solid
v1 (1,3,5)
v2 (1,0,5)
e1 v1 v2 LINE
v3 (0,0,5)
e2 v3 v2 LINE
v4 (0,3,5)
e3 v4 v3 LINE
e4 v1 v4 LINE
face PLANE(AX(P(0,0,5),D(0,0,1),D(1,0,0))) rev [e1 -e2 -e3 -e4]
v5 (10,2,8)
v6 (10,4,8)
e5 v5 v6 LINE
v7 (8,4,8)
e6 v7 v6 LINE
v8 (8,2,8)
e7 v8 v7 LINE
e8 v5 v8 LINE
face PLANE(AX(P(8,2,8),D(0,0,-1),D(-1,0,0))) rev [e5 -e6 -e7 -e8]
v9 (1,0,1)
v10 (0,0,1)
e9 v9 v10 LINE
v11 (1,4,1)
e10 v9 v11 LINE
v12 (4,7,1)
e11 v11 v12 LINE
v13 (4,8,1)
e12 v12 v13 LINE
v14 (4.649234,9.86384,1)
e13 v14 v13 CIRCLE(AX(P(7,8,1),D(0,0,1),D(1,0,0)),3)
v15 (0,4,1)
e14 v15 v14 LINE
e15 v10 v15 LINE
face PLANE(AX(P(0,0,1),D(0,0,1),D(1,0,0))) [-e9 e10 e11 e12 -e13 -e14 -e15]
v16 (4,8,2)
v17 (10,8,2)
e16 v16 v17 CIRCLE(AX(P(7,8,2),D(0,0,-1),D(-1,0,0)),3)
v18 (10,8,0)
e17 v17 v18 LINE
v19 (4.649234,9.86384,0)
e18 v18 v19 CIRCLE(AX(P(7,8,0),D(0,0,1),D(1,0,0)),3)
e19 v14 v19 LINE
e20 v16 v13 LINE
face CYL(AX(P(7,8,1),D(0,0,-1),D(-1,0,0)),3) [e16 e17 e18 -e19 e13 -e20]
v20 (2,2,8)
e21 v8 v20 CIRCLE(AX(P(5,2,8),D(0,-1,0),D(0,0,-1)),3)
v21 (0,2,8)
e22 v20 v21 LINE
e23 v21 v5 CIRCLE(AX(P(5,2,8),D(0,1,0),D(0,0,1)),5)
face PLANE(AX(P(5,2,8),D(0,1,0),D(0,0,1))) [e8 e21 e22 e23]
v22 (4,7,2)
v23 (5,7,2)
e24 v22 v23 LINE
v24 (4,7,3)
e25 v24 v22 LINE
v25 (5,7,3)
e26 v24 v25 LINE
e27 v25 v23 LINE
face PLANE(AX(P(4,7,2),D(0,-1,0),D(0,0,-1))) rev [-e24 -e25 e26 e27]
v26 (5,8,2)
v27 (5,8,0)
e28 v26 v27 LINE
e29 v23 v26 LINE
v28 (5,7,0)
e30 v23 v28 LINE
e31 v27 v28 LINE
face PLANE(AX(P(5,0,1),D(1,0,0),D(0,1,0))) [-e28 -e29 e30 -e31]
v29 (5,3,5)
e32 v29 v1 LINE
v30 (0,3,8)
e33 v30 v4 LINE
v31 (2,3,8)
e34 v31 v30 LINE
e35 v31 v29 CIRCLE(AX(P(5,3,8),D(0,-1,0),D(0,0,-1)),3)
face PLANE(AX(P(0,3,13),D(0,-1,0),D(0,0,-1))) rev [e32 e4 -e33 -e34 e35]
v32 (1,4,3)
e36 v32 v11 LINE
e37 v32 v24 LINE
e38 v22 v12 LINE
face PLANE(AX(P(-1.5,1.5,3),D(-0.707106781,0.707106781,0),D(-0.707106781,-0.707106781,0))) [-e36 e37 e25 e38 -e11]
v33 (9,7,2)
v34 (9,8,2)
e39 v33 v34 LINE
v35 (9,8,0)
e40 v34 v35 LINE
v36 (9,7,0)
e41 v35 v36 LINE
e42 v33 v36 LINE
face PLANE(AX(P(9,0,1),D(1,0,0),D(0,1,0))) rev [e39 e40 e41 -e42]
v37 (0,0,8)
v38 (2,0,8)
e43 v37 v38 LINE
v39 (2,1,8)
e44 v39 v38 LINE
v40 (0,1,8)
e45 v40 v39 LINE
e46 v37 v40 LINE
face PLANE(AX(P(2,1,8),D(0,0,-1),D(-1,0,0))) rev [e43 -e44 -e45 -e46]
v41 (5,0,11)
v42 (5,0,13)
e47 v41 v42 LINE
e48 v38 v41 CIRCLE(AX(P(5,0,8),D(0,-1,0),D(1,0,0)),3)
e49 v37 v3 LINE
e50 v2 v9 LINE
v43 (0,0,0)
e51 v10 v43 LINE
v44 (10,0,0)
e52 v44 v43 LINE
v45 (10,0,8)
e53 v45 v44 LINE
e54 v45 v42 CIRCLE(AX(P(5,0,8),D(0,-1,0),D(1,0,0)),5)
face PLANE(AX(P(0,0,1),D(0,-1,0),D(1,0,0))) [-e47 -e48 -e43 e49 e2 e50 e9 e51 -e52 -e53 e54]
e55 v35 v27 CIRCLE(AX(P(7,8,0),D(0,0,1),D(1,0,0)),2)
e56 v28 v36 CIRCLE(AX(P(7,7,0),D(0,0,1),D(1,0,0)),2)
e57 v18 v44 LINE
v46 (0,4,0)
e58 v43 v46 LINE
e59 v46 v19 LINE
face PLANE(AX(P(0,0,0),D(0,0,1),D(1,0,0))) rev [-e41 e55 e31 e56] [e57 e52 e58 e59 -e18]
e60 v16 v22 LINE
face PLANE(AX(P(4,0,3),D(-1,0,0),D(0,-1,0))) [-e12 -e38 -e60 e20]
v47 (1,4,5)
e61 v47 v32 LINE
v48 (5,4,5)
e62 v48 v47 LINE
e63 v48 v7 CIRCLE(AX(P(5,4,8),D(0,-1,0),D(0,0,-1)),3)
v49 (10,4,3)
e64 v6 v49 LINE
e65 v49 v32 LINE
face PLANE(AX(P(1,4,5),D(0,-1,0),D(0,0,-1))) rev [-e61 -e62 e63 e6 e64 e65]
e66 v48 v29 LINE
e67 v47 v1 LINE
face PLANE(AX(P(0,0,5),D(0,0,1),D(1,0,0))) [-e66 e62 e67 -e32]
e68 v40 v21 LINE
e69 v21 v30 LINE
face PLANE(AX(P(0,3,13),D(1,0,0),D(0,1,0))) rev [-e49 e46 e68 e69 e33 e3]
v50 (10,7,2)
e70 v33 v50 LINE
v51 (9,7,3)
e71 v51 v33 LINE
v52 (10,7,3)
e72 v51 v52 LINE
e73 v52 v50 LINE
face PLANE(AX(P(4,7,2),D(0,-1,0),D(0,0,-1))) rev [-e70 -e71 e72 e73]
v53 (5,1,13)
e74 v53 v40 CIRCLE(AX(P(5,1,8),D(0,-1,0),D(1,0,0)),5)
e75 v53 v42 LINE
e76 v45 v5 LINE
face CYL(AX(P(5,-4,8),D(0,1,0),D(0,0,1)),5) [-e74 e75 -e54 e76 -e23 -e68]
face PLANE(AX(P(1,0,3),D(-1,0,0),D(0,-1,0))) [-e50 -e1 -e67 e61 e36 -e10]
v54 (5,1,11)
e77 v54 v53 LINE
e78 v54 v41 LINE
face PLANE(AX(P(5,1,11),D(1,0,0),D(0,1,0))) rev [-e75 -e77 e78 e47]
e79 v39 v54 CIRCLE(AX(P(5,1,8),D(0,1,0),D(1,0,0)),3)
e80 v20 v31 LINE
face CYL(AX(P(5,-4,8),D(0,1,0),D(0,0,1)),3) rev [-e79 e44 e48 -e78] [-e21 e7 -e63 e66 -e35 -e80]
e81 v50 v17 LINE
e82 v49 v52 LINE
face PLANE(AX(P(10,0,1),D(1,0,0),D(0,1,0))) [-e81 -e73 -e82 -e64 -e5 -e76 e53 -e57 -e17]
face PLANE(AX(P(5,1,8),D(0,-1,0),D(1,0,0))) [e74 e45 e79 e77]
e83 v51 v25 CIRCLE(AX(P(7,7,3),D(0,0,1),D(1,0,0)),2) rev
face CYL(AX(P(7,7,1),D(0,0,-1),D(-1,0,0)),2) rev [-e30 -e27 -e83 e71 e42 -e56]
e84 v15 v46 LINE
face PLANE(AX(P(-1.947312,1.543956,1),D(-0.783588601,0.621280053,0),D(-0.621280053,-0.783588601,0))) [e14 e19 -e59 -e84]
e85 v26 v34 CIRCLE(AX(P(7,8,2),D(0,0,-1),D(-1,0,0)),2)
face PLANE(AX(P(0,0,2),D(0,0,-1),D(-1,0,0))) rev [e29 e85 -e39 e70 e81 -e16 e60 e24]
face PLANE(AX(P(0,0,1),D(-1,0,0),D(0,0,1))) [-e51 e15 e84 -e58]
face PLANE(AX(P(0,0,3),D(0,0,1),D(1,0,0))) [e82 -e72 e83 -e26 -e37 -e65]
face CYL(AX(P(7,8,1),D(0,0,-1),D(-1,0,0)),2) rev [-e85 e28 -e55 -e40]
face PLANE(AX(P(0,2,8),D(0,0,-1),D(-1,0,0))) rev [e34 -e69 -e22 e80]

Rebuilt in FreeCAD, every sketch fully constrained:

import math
import FreeCAD as App
import Part
import Sketcher
Q = App.Units.Quantity


def add_polygon(sketch, points):
    """Adds a closed chain of lines whose ends are joined by coincident constraints."""
    first, n = sketch.GeometryCount, len(points)
    for a, b in zip(points, points[1:] + points[:1]):
        sketch.addGeometry(Part.LineSegment(App.Vector(*a, 0), App.Vector(*b, 0)), False)
    for i in range(n):
        sketch.addConstraint(Sketcher.Constraint("Coincident", first + i, 2, first + (i + 1) % n, 1))

doc = App.newDocument("Part")
body = doc.addObject("PartDesign::Body", "Body")

sketch1 = doc.addObject("Sketcher::SketchObject", "Sketch")
body.addObject(sketch1)
sketch1.AttachmentSupport = (doc.XY_Plane, [""])
sketch1.MapMode = "FlatFace"
sketch1.addGeometry([
    Part.LineSegment(App.Vector(0, 4, 0), App.Vector(0, 0, 0)),
    Part.LineSegment(App.Vector(0, 0, 0), App.Vector(10, 0, 0)),
    Part.LineSegment(App.Vector(10, 0, 0), App.Vector(10, 8, 0)),
    Part.ArcOfCircle(Part.Circle(App.Vector(7, 8, 0), App.Vector(0, 0, 1), 3), math.radians(0), math.radians(141.590329)),
    Part.LineSegment(App.Vector(4.649234, 9.86384, 0), App.Vector(0, 4, 0)),
    Part.LineSegment(App.Vector(9, 8, 0), App.Vector(9, 7, 0)),
    Part.ArcOfCircle(Part.Circle(App.Vector(7, 7, 0), App.Vector(0, 0, 1), 2), math.radians(180), math.radians(360)),
    Part.LineSegment(App.Vector(5, 7, 0), App.Vector(5, 8, 0)),
    Part.ArcOfCircle(Part.Circle(App.Vector(7, 8, 0), App.Vector(0, 0, 1), 2), math.radians(0), math.radians(180)),
], False)
sketch1.addConstraint([
    Sketcher.Constraint("Coincident", 0, 2, 1, 1),
    Sketcher.Constraint("Coincident", 1, 2, 2, 1),
    Sketcher.Constraint("Tangent", 2, 2, 3, 1),
    Sketcher.Constraint("Tangent", 3, 2, 4, 1),
    Sketcher.Constraint("Coincident", 4, 2, 0, 1),
    Sketcher.Constraint("Tangent", 5, 2, 6, 2),
    Sketcher.Constraint("Tangent", 6, 1, 7, 1),
    Sketcher.Constraint("Tangent", 7, 2, 8, 2),
    Sketcher.Constraint("Tangent", 8, 1, 5, 1),
    Sketcher.Constraint("Vertical", 0),
    Sketcher.Constraint("Horizontal", 1),
    Sketcher.Constraint("Vertical", 2),
    Sketcher.Constraint("Vertical", 5),
    Sketcher.Constraint("Vertical", 7),
    Sketcher.Constraint("Coincident", 0, 2, -1, 1),
    Sketcher.Constraint("Coincident", 8, 3, 3, 3),
    Sketcher.Constraint("Radius", 3, Q("3 mm")),
    Sketcher.Constraint("Radius", 6, Q("2 mm")),
    Sketcher.Constraint("DistanceX", 1, 1, 1, 2, Q("10 mm")),
    Sketcher.Constraint("DistanceY", 0, 2, 0, 1, Q("4 mm")),
    Sketcher.Constraint("DistanceY", 2, 1, 2, 2, Q("8 mm")),
    Sketcher.Constraint("DistanceY", 5, 2, 5, 1, Q("1 mm")),
])
pad1 = doc.addObject("PartDesign::Pad", "Pad")
body.addObject(pad1)
pad1.Profile = sketch1
pad1.Length = 1

sketch2 = doc.addObject("Sketcher::SketchObject", "Sketch001")
body.addObject(sketch2)
sketch2.AttachmentSupport = (doc.XY_Plane, [""])
sketch2.MapMode = "FlatFace"
sketch2.AttachmentOffset = App.Placement(App.Vector(0, 0, 1), App.Rotation())
sketch2.addGeometry([
    Part.LineSegment(App.Vector(1, 4, 0), App.Vector(1, 0, 0)),
    Part.LineSegment(App.Vector(1, 0, 0), App.Vector(10, 0, 0)),
    Part.LineSegment(App.Vector(10, 0, 0), App.Vector(10, 8, 0)),
    Part.ArcOfCircle(Part.Circle(App.Vector(7, 8, 0), App.Vector(0, 0, 1), 3), math.radians(0), math.radians(180)),
    Part.LineSegment(App.Vector(4, 8, 0), App.Vector(4, 7, 0)),
    Part.LineSegment(App.Vector(4, 7, 0), App.Vector(1, 4, 0)),
    Part.ArcOfCircle(Part.Circle(App.Vector(7, 7, 0), App.Vector(0, 0, 1), 2), math.radians(180), math.radians(360)),
    Part.LineSegment(App.Vector(5, 7, 0), App.Vector(5, 8, 0)),
    Part.ArcOfCircle(Part.Circle(App.Vector(7, 8, 0), App.Vector(0, 0, 1), 2), math.radians(0), math.radians(180)),
    Part.LineSegment(App.Vector(9, 8, 0), App.Vector(9, 7, 0)),
], False)
sketch2.addConstraint([
    Sketcher.Constraint("Coincident", 0, 2, 1, 1),
    Sketcher.Constraint("Coincident", 1, 2, 2, 1),
    Sketcher.Constraint("Tangent", 2, 2, 3, 1),
    Sketcher.Constraint("Tangent", 3, 2, 4, 1),
    Sketcher.Constraint("Coincident", 4, 2, 5, 1),
    Sketcher.Constraint("Coincident", 5, 2, 0, 1),
    Sketcher.Constraint("Tangent", 6, 1, 7, 1),
    Sketcher.Constraint("Tangent", 7, 2, 8, 2),
    Sketcher.Constraint("Tangent", 8, 1, 9, 1),
    Sketcher.Constraint("Tangent", 9, 2, 6, 2),
    Sketcher.Constraint("Vertical", 0),
    Sketcher.Constraint("Horizontal", 1),
    Sketcher.Constraint("Vertical", 2),
    Sketcher.Constraint("Vertical", 4),
    Sketcher.Constraint("Vertical", 7),
    Sketcher.Constraint("Vertical", 9),
    Sketcher.Constraint("Coincident", 8, 3, 3, 3),
    Sketcher.Constraint("PointOnObject", 0, 2, -1),
    Sketcher.Constraint("Horizontal", 6, 3, 4, 2),
    Sketcher.Constraint("Radius", 3, Q("3 mm")),
    Sketcher.Constraint("Radius", 6, Q("2 mm")),
    Sketcher.Constraint("DistanceX", 1, 1, 1, 2, Q("9 mm")),
    Sketcher.Constraint("DistanceY", 0, 2, 0, 1, Q("4 mm")),
    Sketcher.Constraint("DistanceY", 2, 1, 2, 2, Q("8 mm")),
    Sketcher.Constraint("DistanceY", 4, 2, 4, 1, Q("1 mm")),
    Sketcher.Constraint("DistanceX", -1, 1, 3, 3, Q("7 mm")),
])
pad2 = doc.addObject("PartDesign::Pad", "Pad001")
body.addObject(pad2)
pad2.Profile = sketch2
pad2.Length = 2

sketch3 = doc.addObject("Sketcher::SketchObject", "Sketch002")
body.addObject(sketch3)
sketch3.AttachmentSupport = (doc.XY_Plane, [""])
sketch3.MapMode = "FlatFace"
sketch3.AttachmentOffset = App.Placement(App.Vector(0, 0, 3), App.Rotation())
add_polygon(sketch3, [(4, 11.405707), (4, 7), (10.323405, 7), (10.323405, 11.405707)])
sketch3.addConstraint([
    Sketcher.Constraint("Vertical", 0),
    Sketcher.Constraint("Horizontal", 1),
    Sketcher.Constraint("Vertical", 2),
    Sketcher.Constraint("Horizontal", 3),
    Sketcher.Constraint("DistanceX", -1, 1, 0, 2, Q("4 mm")),
    Sketcher.Constraint("DistanceY", -1, 1, 0, 2, Q("7 mm")),
    Sketcher.Constraint("DistanceX", 1, 1, 1, 2, Q("6.323405 mm")),
    Sketcher.Constraint("DistanceY", 0, 2, 0, 1, Q("4.405707 mm")),
])
pocket1 = doc.addObject("PartDesign::Pocket", "Pocket")
body.addObject(pocket1)
pocket1.Profile = sketch3
pocket1.Length = 1

sketch4 = doc.addObject("Sketcher::SketchObject", "Sketch003")
body.addObject(sketch4)
sketch4.AttachmentSupport = (doc.XY_Plane, [""])
sketch4.MapMode = "FlatFace"
sketch4.AttachmentOffset = App.Placement(App.Vector(0, 0, 3), App.Rotation())
add_polygon(sketch4, [(1, 4), (1, 0), (10, 0), (10, 4)])
sketch4.addConstraint([
    Sketcher.Constraint("Vertical", 0),
    Sketcher.Constraint("Horizontal", 1),
    Sketcher.Constraint("Vertical", 2),
    Sketcher.Constraint("Horizontal", 3),
    Sketcher.Constraint("PointOnObject", 0, 2, -1),
    Sketcher.Constraint("DistanceX", 1, 1, 1, 2, Q("9 mm")),
    Sketcher.Constraint("DistanceY", 0, 2, 0, 1, Q("4 mm")),
    Sketcher.Constraint("DistanceX", -1, 1, 0, 2, Q("1 mm")),
])
pad3 = doc.addObject("PartDesign::Pad", "Pad002")
body.addObject(pad3)
pad3.Profile = sketch4
pad3.Length = 2

sketch5 = doc.addObject("Sketcher::SketchObject", "Sketch004")
body.addObject(sketch5)
sketch5.AttachmentSupport = (doc.XY_Plane, [""])
sketch5.MapMode = "FlatFace"
sketch5.AttachmentOffset = App.Placement(App.Vector(0, 0, 5), App.Rotation())
add_polygon(sketch5, [(0, 3), (0, 0), (10, 0), (10, 3)])
sketch5.addConstraint([
    Sketcher.Constraint("Vertical", 0),
    Sketcher.Constraint("Horizontal", 1),
    Sketcher.Constraint("Vertical", 2),
    Sketcher.Constraint("Horizontal", 3),
    Sketcher.Constraint("Coincident", 0, 2, -1, 1),
    Sketcher.Constraint("DistanceX", 1, 1, 1, 2, Q("10 mm")),
    Sketcher.Constraint("DistanceY", 0, 2, 0, 1, Q("3 mm")),
])
pad4 = doc.addObject("PartDesign::Pad", "Pad003")
body.addObject(pad4)
pad4.Profile = sketch5
pad4.Length = 8

sketch6 = doc.addObject("Sketcher::SketchObject", "Sketch005")
body.addObject(sketch6)
sketch6.AttachmentSupport = (doc.XZ_Plane, [""])
sketch6.MapMode = "FlatFace"
sketch6.AttachmentOffset = App.Placement(App.Vector(0, 0, -4), App.Rotation())
sketch6.addGeometry([
    Part.LineSegment(App.Vector(10, 16.316771, 0), App.Vector(10, 8, 0)),
    Part.ArcOfCircle(Part.Circle(App.Vector(5, 8, 0), App.Vector(0, 0, 1), 5), math.radians(0), math.radians(180)),
    Part.LineSegment(App.Vector(0, 8, 0), App.Vector(0, 16.316771, 0)),
    Part.LineSegment(App.Vector(0, 16.316771, 0), App.Vector(10, 16.316771, 0)),
    Part.Circle(App.Vector(5, 8, 0), App.Vector(0, 0, 1), 3),
], False)
sketch6.addConstraint([
    Sketcher.Constraint("Tangent", 0, 2, 1, 1),
    Sketcher.Constraint("Tangent", 1, 2, 2, 1),
    Sketcher.Constraint("Coincident", 2, 2, 3, 1),
    Sketcher.Constraint("Coincident", 3, 2, 0, 1),
    Sketcher.Constraint("Vertical", 0),
    Sketcher.Constraint("Vertical", 2),
    Sketcher.Constraint("Horizontal", 3),
    Sketcher.Constraint("Coincident", 4, 3, 1, 3),
    Sketcher.Constraint("PointOnObject", 1, 2, -2),
    Sketcher.Constraint("Diameter", 4, Q("6 mm")),
    Sketcher.Constraint("Radius", 1, Q("5 mm")),
    Sketcher.Constraint("DistanceY", -1, 1, 1, 3, Q("8 mm")),
    Sketcher.Constraint("DistanceY", 0, 2, 0, 1, Q("8.316771 mm")),
])
pocket2 = doc.addObject("PartDesign::Pocket", "Pocket001")
body.addObject(pocket2)
pocket2.Profile = sketch6
pocket2.Length = 8
pocket2.Reversed = True

sketch7 = doc.addObject("Sketcher::SketchObject", "Sketch006")
body.addObject(sketch7)
sketch7.AttachmentSupport = (doc.XZ_Plane, [""])
sketch7.MapMode = "FlatFace"
sketch7.addGeometry([
    Part.LineSegment(App.Vector(5, 11, 0), App.Vector(5, 13, 0)),
    Part.ArcOfCircle(Part.Circle(App.Vector(5, 8, 0), App.Vector(0, 0, 1), 5), math.radians(90), math.radians(180)),
    Part.LineSegment(App.Vector(0, 8, 0), App.Vector(2, 8, 0)),
    Part.ArcOfCircle(Part.Circle(App.Vector(5, 8, 0), App.Vector(0, 0, 1), 3), math.radians(90), math.radians(180)),
], False)
sketch7.addConstraint([
    Sketcher.Constraint("Coincident", 0, 2, 1, 1),
    Sketcher.Constraint("Coincident", 1, 2, 2, 1),
    Sketcher.Constraint("Coincident", 2, 2, 3, 2),
    Sketcher.Constraint("Coincident", 3, 1, 0, 1),
    Sketcher.Constraint("Vertical", 0),
    Sketcher.Constraint("Horizontal", 2),
    Sketcher.Constraint("Coincident", 3, 3, 1, 3),
    Sketcher.Constraint("PointOnObject", 1, 2, -2),
    Sketcher.Constraint("Horizontal", 3, 3, 1, 2),
    Sketcher.Constraint("Vertical", 3, 3, 0, 2),
    Sketcher.Constraint("Radius", 1, Q("5 mm")),
    Sketcher.Constraint("Radius", 3, Q("3 mm")),
    Sketcher.Constraint("DistanceY", -1, 1, 1, 3, Q("8 mm")),
])
pocket3 = doc.addObject("PartDesign::Pocket", "Pocket002")
body.addObject(pocket3)
pocket3.Profile = sketch7
pocket3.Length = 1

sketch8 = doc.addObject("Sketcher::SketchObject", "Sketch007")
body.addObject(sketch8)
sketch8.AttachmentSupport = (doc.XZ_Plane, [""])
sketch8.MapMode = "FlatFace"
sketch8.AttachmentOffset = App.Placement(App.Vector(0, 0, -3), App.Rotation())
sketch8.addGeometry([
    Part.LineSegment(App.Vector(2, 8, 0), App.Vector(0, 8, 0)),
    Part.ArcOfCircle(Part.Circle(App.Vector(5, 8, 0), App.Vector(0, 0, 1), 5), math.radians(0), math.radians(180)),
    Part.LineSegment(App.Vector(10, 8, 0), App.Vector(8, 8, 0)),
    Part.ArcOfCircle(Part.Circle(App.Vector(5, 8, 0), App.Vector(0, 0, 1), 3), math.radians(0), math.radians(180)),
], False)
sketch8.addConstraint([
    Sketcher.Constraint("Coincident", 0, 2, 1, 2),
    Sketcher.Constraint("Coincident", 1, 1, 2, 1),
    Sketcher.Constraint("Coincident", 2, 2, 3, 1),
    Sketcher.Constraint("Coincident", 3, 2, 0, 1),
    Sketcher.Constraint("Horizontal", 0),
    Sketcher.Constraint("Horizontal", 2),
    Sketcher.Constraint("Coincident", 3, 3, 1, 3),
    Sketcher.Constraint("PointOnObject", 0, 2, -2),
    Sketcher.Constraint("Horizontal", 3, 3, 0, 2),
    Sketcher.Constraint("Horizontal", 0, 2, 1, 1),
    Sketcher.Constraint("Radius", 1, Q("5 mm")),
    Sketcher.Constraint("Radius", 3, Q("3 mm")),
    Sketcher.Constraint("DistanceY", -1, 1, 1, 3, Q("8 mm")),
])
pocket4 = doc.addObject("PartDesign::Pocket", "Pocket003")
body.addObject(pocket4)
pocket4.Profile = sketch8
pocket4.Length = 1
pocket4.Reversed = True

sketch9 = doc.addObject("Sketcher::SketchObject", "Sketch008")
body.addObject(sketch9)
sketch9.AttachmentSupport = (doc.XZ_Plane, [""])
sketch9.MapMode = "FlatFace"
sketch9.AttachmentOffset = App.Placement(App.Vector(0, 0, -3), App.Rotation())
sketch9.addGeometry([
    Part.LineSegment(App.Vector(8, 8, 0), App.Vector(10, 8, 0)),
    Part.LineSegment(App.Vector(10, 8, 0), App.Vector(10, 5, 0)),
    Part.LineSegment(App.Vector(10, 5, 0), App.Vector(5, 5, 0)),
    Part.ArcOfCircle(Part.Circle(App.Vector(5, 8, 0), App.Vector(0, 0, 1), 3), math.radians(-90), math.radians(0)),
], False)
sketch9.addConstraint([
    Sketcher.Constraint("Coincident", 0, 2, 1, 1),
    Sketcher.Constraint("Coincident", 1, 2, 2, 1),
    Sketcher.Constraint("Tangent", 2, 2, 3, 1),
    Sketcher.Constraint("Coincident", 3, 2, 0, 1),
    Sketcher.Constraint("Horizontal", 0),
    Sketcher.Constraint("Vertical", 1),
    Sketcher.Constraint("Horizontal", 2),
    Sketcher.Constraint("Horizontal", 3, 3, 0, 2),
    Sketcher.Constraint("Radius", 3, Q("3 mm")),
    Sketcher.Constraint("DistanceX", 0, 1, 0, 2, Q("2 mm")),
    Sketcher.Constraint("DistanceX", -1, 1, 3, 3, Q("5 mm")),
    Sketcher.Constraint("DistanceY", -1, 1, 3, 3, Q("8 mm")),
])
pad5 = doc.addObject("PartDesign::Pad", "Pad004")
body.addObject(pad5)
pad5.Profile = sketch9
pad5.Length = 1
pad5.Reversed = True

doc.recompute()
